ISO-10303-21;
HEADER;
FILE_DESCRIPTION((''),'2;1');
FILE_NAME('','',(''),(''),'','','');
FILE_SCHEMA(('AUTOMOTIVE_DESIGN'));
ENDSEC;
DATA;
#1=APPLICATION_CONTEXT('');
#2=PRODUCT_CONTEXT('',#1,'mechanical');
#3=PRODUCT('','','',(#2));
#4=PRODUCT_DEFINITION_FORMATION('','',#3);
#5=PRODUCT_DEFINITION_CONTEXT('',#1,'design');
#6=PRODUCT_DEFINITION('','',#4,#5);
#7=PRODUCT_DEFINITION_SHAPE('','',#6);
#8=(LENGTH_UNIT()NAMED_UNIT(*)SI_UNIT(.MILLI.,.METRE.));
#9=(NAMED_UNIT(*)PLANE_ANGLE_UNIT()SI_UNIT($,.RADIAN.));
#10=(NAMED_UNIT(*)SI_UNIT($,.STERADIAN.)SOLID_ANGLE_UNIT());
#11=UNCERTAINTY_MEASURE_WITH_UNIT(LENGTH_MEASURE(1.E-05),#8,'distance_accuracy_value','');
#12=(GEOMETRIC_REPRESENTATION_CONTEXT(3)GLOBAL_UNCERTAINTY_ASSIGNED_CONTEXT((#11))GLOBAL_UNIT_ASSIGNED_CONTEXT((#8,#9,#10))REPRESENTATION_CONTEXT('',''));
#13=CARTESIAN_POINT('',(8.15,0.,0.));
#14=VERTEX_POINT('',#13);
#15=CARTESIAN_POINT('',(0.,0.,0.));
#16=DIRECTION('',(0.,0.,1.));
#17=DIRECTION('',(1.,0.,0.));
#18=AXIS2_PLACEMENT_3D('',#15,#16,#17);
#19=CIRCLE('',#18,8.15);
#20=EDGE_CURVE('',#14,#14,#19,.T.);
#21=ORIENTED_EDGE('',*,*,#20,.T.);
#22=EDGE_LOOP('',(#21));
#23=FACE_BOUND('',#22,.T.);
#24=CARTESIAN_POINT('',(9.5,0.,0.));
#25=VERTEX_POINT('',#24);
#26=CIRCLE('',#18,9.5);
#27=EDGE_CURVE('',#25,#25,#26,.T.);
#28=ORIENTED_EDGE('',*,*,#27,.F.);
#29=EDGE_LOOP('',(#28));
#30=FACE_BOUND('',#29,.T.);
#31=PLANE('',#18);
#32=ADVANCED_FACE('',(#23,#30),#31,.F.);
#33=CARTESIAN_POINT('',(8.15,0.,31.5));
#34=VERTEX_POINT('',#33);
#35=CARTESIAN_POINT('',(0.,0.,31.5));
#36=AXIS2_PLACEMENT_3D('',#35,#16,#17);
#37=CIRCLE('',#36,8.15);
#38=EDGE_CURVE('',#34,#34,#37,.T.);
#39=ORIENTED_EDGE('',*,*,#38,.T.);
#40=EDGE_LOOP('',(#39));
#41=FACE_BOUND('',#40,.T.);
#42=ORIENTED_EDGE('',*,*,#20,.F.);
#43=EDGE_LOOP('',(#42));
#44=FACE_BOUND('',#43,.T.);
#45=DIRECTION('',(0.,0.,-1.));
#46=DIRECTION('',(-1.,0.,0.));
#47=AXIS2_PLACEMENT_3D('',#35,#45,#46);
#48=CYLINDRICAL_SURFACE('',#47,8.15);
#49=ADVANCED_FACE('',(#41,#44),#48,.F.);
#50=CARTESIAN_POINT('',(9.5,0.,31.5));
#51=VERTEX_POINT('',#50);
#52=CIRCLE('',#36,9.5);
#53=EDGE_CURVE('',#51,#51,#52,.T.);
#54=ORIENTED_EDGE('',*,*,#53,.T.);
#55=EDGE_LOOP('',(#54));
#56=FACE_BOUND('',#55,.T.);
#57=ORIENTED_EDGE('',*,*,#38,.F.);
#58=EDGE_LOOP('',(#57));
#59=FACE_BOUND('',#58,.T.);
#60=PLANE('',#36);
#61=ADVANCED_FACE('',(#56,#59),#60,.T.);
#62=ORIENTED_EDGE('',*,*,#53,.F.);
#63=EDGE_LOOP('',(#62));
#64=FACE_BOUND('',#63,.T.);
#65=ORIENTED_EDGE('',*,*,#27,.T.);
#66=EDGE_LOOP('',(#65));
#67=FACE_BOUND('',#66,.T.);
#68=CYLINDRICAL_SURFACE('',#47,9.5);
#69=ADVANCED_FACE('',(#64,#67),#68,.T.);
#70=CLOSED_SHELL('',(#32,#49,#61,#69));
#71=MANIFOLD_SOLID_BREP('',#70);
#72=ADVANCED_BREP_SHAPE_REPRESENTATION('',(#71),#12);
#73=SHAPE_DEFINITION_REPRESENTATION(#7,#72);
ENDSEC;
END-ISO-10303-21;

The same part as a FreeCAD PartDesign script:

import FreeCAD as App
import Part
import Sketcher
from FreeCAD import Vector

doc = App.newDocument("Part")
body = doc.addObject("PartDesign::Body", "Body")

# Sketch on XY plane
sketch1 = body.newObject("Sketcher::SketchObject", "Sketch")
sketch1.AttachmentSupport = (doc.getObject("XY_Plane"), [""])
sketch1.MapMode = "FlatFace"
sketch1.addGeometry([
    Part.Circle(Vector(0, 0, 0), Vector(0, 0, 1), 9.5),
    Part.Circle(Vector(0, 0, 0), Vector(0, 0, 1), 8.15),
], False)
sketch1.addConstraint([
    Sketcher.Constraint("Coincident", 0, 3, -1, 1),
    Sketcher.Constraint("Coincident", 1, 3, -1, 1),
    Sketcher.Constraint("Diameter", 0, 19.0),
    Sketcher.Constraint("Diameter", 1, 16.3),
])
pad1 = body.newObject("PartDesign::Pad", "Pad")
pad1.Profile = sketch1
pad1.Length = 31.5

doc.recompute()
